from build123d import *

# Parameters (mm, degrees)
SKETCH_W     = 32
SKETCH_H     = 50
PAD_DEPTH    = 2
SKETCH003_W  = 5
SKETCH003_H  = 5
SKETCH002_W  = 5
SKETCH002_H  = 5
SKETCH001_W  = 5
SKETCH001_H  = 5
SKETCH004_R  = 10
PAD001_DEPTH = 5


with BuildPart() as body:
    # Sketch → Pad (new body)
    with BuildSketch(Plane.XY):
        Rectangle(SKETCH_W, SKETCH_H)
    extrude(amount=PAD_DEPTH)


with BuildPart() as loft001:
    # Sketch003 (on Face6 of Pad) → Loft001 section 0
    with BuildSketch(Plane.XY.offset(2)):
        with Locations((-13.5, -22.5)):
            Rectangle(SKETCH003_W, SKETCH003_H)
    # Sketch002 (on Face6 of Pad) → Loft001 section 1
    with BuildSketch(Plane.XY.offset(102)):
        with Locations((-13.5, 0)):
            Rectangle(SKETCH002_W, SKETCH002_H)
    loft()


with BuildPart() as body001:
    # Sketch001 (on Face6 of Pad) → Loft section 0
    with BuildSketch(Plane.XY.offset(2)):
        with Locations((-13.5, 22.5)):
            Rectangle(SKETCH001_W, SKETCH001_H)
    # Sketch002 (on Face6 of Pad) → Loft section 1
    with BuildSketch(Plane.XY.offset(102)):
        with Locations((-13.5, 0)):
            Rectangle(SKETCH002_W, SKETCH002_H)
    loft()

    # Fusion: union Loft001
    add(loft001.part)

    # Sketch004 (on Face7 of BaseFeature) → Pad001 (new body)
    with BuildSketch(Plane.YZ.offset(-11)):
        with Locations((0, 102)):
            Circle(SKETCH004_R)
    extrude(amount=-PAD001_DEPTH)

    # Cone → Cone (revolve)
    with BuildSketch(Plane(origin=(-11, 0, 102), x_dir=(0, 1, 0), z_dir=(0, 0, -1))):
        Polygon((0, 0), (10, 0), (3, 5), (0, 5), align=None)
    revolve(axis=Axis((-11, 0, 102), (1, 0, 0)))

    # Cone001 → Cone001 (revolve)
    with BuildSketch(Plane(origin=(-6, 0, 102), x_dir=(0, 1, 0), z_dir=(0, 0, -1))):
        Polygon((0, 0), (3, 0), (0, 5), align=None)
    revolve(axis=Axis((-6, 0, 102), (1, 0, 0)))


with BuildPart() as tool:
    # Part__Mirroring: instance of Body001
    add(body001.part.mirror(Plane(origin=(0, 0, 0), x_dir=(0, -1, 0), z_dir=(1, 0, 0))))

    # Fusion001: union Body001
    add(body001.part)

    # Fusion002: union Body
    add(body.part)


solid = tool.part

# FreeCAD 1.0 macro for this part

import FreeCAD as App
import Part
import Sketcher

V = App.Vector


def add_polygon(sketch, points):
    """Adds a closed chain of lines whose ends are joined by coincident constraints."""
    first, n = sketch.GeometryCount, len(points)
    for a, b in zip(points, points[1:] + points[:1]):
        sketch.addGeometry(Part.LineSegment(App.Vector(*a, 0), App.Vector(*b, 0)), False)
    for i in range(n):
        sketch.addConstraint(Sketcher.Constraint("Coincident", first + i, 2, first + (i + 1) % n, 1))

doc = App.newDocument("Part")
body = doc.addObject("PartDesign::Body", "Body")

sketch1 = body.newObject("Sketcher::SketchObject", "Sketch")
sketch1.AttachmentSupport = (doc.getObject("XY_Plane"), [""])
sketch1.MapMode = "FlatFace"
add_polygon(sketch1, [(-16, 25), (-16, -25), (16, -25), (16, 25)])
sketch1.addConstraint(Sketcher.Constraint("Vertical", 0))
sketch1.addConstraint(Sketcher.Constraint("Horizontal", 1))
sketch1.addConstraint(Sketcher.Constraint("Vertical", 2))
sketch1.addConstraint(Sketcher.Constraint("Horizontal", 3))
sketch1.addConstraint(Sketcher.Constraint("Symmetric", 0, 2, 2, 2, -1, 1))
sketch1.addConstraint(Sketcher.Constraint("DistanceX", 1, 1, 1, 2, 32.0))
sketch1.addConstraint(Sketcher.Constraint("DistanceY", 0, 2, 0, 1, 50.0))
pad1 = body.newObject("PartDesign::Pad", "Pad")
pad1.Profile = sketch1
pad1.Length = 2
body2 = doc.addObject("PartDesign::Body", "Body001")

sketch2 = body2.newObject("Sketcher::SketchObject", "Sketch001")
sketch2.AttachmentSupport = (doc.getObject("XY_Plane001"), [""])
sketch2.MapMode = "FlatFace"
sketch2.AttachmentOffset = App.Placement(V(0, 0, 2), App.Rotation())
add_polygon(sketch2, [(-16, -20), (-16, -25), (-11, -25), (-11, -20)])
sketch2.addConstraint(Sketcher.Constraint("Vertical", 0))
sketch2.addConstraint(Sketcher.Constraint("Horizontal", 1))
sketch2.addConstraint(Sketcher.Constraint("Vertical", 2))
sketch2.addConstraint(Sketcher.Constraint("Horizontal", 3))
sketch2.addConstraint(Sketcher.Constraint("Equal", 3, 0))
sketch2.addConstraint(Sketcher.Constraint("DistanceX", 1, 1, 1, 2, 5.0))
sketch2.addConstraint(Sketcher.Constraint("DistanceX", 0, 2, -1, 1, 16.0))
sketch2.addConstraint(Sketcher.Constraint("DistanceY", 0, 2, -1, 1, 25.0))

sketch3 = body2.newObject("Sketcher::SketchObject", "Sketch002")
sketch3.AttachmentSupport = (doc.getObject("XY_Plane001"), [""])
sketch3.MapMode = "FlatFace"
sketch3.AttachmentOffset = App.Placement(V(0, 0, 102), App.Rotation())
add_polygon(sketch3, [(-16, 2.5), (-16, -2.5), (-11, -2.5), (-11, 2.5)])
sketch3.addConstraint(Sketcher.Constraint("Vertical", 0))
sketch3.addConstraint(Sketcher.Constraint("Horizontal", 1))
sketch3.addConstraint(Sketcher.Constraint("Vertical", 2))
sketch3.addConstraint(Sketcher.Constraint("Horizontal", 3))
sketch3.addConstraint(Sketcher.Constraint("Equal", 3, 0))
sketch3.addConstraint(Sketcher.Constraint("DistanceX", 1, 1, 1, 2, 5.0))
sketch3.addConstraint(Sketcher.Constraint("DistanceX", 0, 2, -1, 1, 16.0))
sketch3.addConstraint(Sketcher.Constraint("DistanceY", 0, 2, -1, 1, 2.5))

additiveloft = body2.newObject("PartDesign::AdditiveLoft", "AdditiveLoft")
additiveloft.Profile = sketch2
additiveloft.Sections = [sketch3]
body3 = doc.addObject("PartDesign::Body", "Body002")

sketch4 = body3.newObject("Sketcher::SketchObject", "Sketch003")
sketch4.AttachmentSupport = (doc.getObject("XY_Plane002"), [""])
sketch4.MapMode = "FlatFace"
sketch4.AttachmentOffset = App.Placement(V(0, 0, 2), App.Rotation())
add_polygon(sketch4, [(-16, 25), (-16, 20), (-11, 20), (-11, 25)])
sketch4.addConstraint(Sketcher.Constraint("Vertical", 0))
sketch4.addConstraint(Sketcher.Constraint("Horizontal", 1))
sketch4.addConstraint(Sketcher.Constraint("Vertical", 2))
sketch4.addConstraint(Sketcher.Constraint("Horizontal", 3))
sketch4.addConstraint(Sketcher.Constraint("Equal", 3, 0))
sketch4.addConstraint(Sketcher.Constraint("DistanceX", 1, 1, 1, 2, 5.0))
sketch4.addConstraint(Sketcher.Constraint("DistanceX", 0, 2, -1, 1, 16.0))
sketch4.addConstraint(Sketcher.Constraint("DistanceY", -1, 1, 0, 2, 20.0))

sketch5 = body3.newObject("Sketcher::SketchObject", "Sketch004")
sketch5.AttachmentSupport = (doc.getObject("XY_Plane002"), [""])
sketch5.MapMode = "FlatFace"
sketch5.AttachmentOffset = App.Placement(V(0, 0, 102), App.Rotation())
add_polygon(sketch5, [(-16, 2.5), (-16, -2.5), (-11, -2.5), (-11, 2.5)])
sketch5.addConstraint(Sketcher.Constraint("Vertical", 0))
sketch5.addConstraint(Sketcher.Constraint("Horizontal", 1))
sketch5.addConstraint(Sketcher.Constraint("Vertical", 2))
sketch5.addConstraint(Sketcher.Constraint("Horizontal", 3))
sketch5.addConstraint(Sketcher.Constraint("Equal", 3, 0))
sketch5.addConstraint(Sketcher.Constraint("DistanceX", 1, 1, 1, 2, 5.0))
sketch5.addConstraint(Sketcher.Constraint("DistanceX", 0, 2, -1, 1, 16.0))
sketch5.addConstraint(Sketcher.Constraint("DistanceY", 0, 2, -1, 1, 2.5))

additiveloft2 = body3.newObject("PartDesign::AdditiveLoft", "AdditiveLoft001")
additiveloft2.Profile = sketch4
additiveloft2.Sections = [sketch5]
doc.recompute()

boolean = body3.newObject("PartDesign::Boolean", "Boolean")
boolean.Type = "Fuse"
boolean.addObjects([body2])

sketch6 = body3.newObject("Sketcher::SketchObject", "Sketch005")
sketch6.AttachmentSupport = (doc.getObject("YZ_Plane002"), [""])
sketch6.MapMode = "FlatFace"
sketch6.AttachmentOffset = App.Placement(V(0, 0, -11), App.Rotation())
sketch6.addGeometry(Part.Circle(V(0, 102, 0), V(0, 0, 1), 10), False)
sketch6.addConstraint(Sketcher.Constraint("PointOnObject", 0, 3, -2))
sketch6.addConstraint(Sketcher.Constraint("Diameter", 0, 20.0))
sketch6.addConstraint(Sketcher.Constraint("DistanceY", -1, 1, 0, 3, 102.0))
pad2 = body3.newObject("PartDesign::Pad", "Pad001")
pad2.Profile = sketch6
pad2.Length = 5
pad2.Reversed = True

sketch7 = body3.newObject("Sketcher::SketchObject", "Sketch006")
sketch7.AttachmentSupport = (doc.getObject("XY_Plane002"), [""])
sketch7.MapMode = "FlatFace"
sketch7.AttachmentOffset = App.Placement(V(0, 0, 102), App.Rotation())
add_polygon(sketch7, [(-11, 0), (-11, 10), (-6, 3), (-6, 0)])
sketch7.addConstraint(Sketcher.Constraint("Vertical", 0))
sketch7.addConstraint(Sketcher.Constraint("Vertical", 2))
sketch7.addConstraint(Sketcher.Constraint("Horizontal", 3))
sketch7.addConstraint(Sketcher.Constraint("PointOnObject", 2, 2, -1))
sketch7.addConstraint(Sketcher.Constraint("DistanceX", 3, 2, 3, 1, 5.0))
sketch7.addConstraint(Sketcher.Constraint("DistanceY", 0, 1, 0, 2, 10.0))
sketch7.addConstraint(Sketcher.Constraint("DistanceY", 2, 2, 2, 1, 3.0))
sketch7.addConstraint(Sketcher.Constraint("DistanceX", 0, 2, -1, 1, 11.0))
revolution = body3.newObject("PartDesign::Revolution", "Revolution")
revolution.Profile = sketch7
revolution.ReferenceAxis = (sketch7, ["H_Axis"])
revolution.Angle = 360

sketch8 = body3.newObject("Sketcher::SketchObject", "Sketch007")
sketch8.AttachmentSupport = (doc.getObject("XY_Plane002"), [""])
sketch8.MapMode = "FlatFace"
sketch8.AttachmentOffset = App.Placement(V(0, 0, 102), App.Rotation())
add_polygon(sketch8, [(-6, 0), (-6, 3), (-1, 0)])
sketch8.addConstraint(Sketcher.Constraint("Vertical", 0))
sketch8.addConstraint(Sketcher.Constraint("Horizontal", 2))
sketch8.addConstraint(Sketcher.Constraint("PointOnObject", 1, 2, -1))
sketch8.addConstraint(Sketcher.Constraint("DistanceX", 2, 2, 2, 1, 5.0))
sketch8.addConstraint(Sketcher.Constraint("DistanceY", 0, 1, 0, 2, 3.0))
sketch8.addConstraint(Sketcher.Constraint("DistanceX", 0, 2, -1, 1, 6.0))
revolution2 = body3.newObject("PartDesign::Revolution", "Revolution001")
revolution2.Profile = sketch8
revolution2.ReferenceAxis = (sketch8, ["H_Axis"])
revolution2.Angle = 360
body4 = doc.addObject("PartDesign::Body", "Body003")
body4.AllowCompound = True
doc.recompute()

mirroring = doc.addObject("Part::Mirroring", "Mirroring")
mirroring.Source = body3
mirroring.Base = V(0, 0, 0)
mirroring.Normal = V(1, 0, 0)
body4.BaseFeature = mirroring
doc.recompute()

boolean2 = body4.newObject("PartDesign::Boolean", "Boolean001")
boolean2.Type = "Fuse"
boolean2.addObjects([body3])
doc.recompute()

boolean3 = body4.newObject("PartDesign::Boolean", "Boolean002")
boolean3.Type = "Fuse"
boolean3.addObjects([body])
mirroring.Visibility = False

doc.recompute()
